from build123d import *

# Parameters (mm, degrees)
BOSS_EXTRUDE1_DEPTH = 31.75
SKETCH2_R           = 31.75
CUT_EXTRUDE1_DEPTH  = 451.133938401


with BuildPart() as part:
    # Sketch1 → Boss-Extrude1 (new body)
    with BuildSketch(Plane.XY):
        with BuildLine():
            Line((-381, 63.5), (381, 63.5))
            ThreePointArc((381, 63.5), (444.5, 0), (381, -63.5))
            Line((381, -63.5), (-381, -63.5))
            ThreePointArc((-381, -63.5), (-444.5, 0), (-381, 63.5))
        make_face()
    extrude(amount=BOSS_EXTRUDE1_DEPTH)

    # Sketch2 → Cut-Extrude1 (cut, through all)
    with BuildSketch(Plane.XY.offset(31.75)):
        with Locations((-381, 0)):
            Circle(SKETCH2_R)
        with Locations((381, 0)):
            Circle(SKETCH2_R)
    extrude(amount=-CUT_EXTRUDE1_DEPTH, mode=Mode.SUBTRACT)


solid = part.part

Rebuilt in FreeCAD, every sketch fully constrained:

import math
import FreeCAD as App
import Part
import Sketcher
from FreeCAD import Vector
Q = App.Units.Quantity

doc = App.newDocument("Part")
body = doc.addObject("PartDesign::Body", "Body")

# Sketch on XY plane
sketch1 = body.newObject("Sketcher::SketchObject", "Sketch")
sketch1.AttachmentSupport = (doc.getObject("XY_Plane"), [""])
sketch1.MapMode = "FlatFace"
sketch1.addGeometry(Part.LineSegment(Vector(381, 63.5, 0), Vector(-381, 63.5, 0)), False)
sketch1.addGeometry(Part.ArcOfCircle(Part.Circle(Vector(-381, 0, 0), Vector(0, 0, 1), 63.5), math.radians(90), math.radians(270)), False)
sketch1.addGeometry(Part.LineSegment(Vector(-381, -63.5, 0), Vector(381, -63.5, 0)), False)
sketch1.addGeometry(Part.ArcOfCircle(Part.Circle(Vector(381, 0, 0), Vector(0, 0, 1), 63.5), math.radians(-90), math.radians(90)), False)
sketch1.addConstraint(Sketcher.Constraint("Tangent", 0, 2, 1, 1))
sketch1.addConstraint(Sketcher.Constraint("Tangent", 1, 2, 2, 1))
sketch1.addConstraint(Sketcher.Constraint("Tangent", 2, 2, 3, 1))
sketch1.addConstraint(Sketcher.Constraint("Tangent", 3, 2, 0, 1))
sketch1.addConstraint(Sketcher.Constraint("Horizontal", 0))
sketch1.addConstraint(Sketcher.Constraint("Horizontal", 2))
sketch1.addConstraint(Sketcher.Constraint("Symmetric", 1, 3, 3, 3, -1, 1))
sketch1.addConstraint(Sketcher.Constraint("Radius", 1, Q("2.5 in")))
sketch1.addConstraint(Sketcher.Constraint("DistanceX", 0, 2, 0, 1, Q("30 in")))
pad1 = body.newObject("PartDesign::Pad", "Pad")
pad1.Profile = sketch1
pad1.Length = Q("1.25 in")

# Sketch on XY plane
sketch2 = body.newObject("Sketcher::SketchObject", "Sketch001")
sketch2.AttachmentSupport = (doc.getObject("XY_Plane"), [""])
sketch2.MapMode = "FlatFace"
sketch2.AttachmentOffset = App.Placement(Vector(0, 0, 1.25 * 25.4), App.Rotation())
sketch2.addGeometry(Part.Circle(Vector(-381, 0, 0), Vector(0, 0, 1), 31.75), False)
sketch2.addGeometry(Part.Circle(Vector(381, 0, 0), Vector(0, 0, 1), 31.75), False)
sketch2.addConstraint(Sketcher.Constraint("Equal", 0, 1))
sketch2.addConstraint(Sketcher.Constraint("Symmetric", 0, 3, 1, 3, -1, 1))
sketch2.addConstraint(Sketcher.Constraint("PointOnObject", 0, 3, -1))
sketch2.addConstraint(Sketcher.Constraint("Diameter", 0, Q("2.5 in")))
sketch2.addConstraint(Sketcher.Constraint("DistanceX", 0, 3, -1, 1, Q("15 in")))
pocket1 = body.newObject("PartDesign::Pocket", "Pocket")
pocket1.Profile = sketch2
pocket1.Type = "ThroughAll"

doc.recompute()
